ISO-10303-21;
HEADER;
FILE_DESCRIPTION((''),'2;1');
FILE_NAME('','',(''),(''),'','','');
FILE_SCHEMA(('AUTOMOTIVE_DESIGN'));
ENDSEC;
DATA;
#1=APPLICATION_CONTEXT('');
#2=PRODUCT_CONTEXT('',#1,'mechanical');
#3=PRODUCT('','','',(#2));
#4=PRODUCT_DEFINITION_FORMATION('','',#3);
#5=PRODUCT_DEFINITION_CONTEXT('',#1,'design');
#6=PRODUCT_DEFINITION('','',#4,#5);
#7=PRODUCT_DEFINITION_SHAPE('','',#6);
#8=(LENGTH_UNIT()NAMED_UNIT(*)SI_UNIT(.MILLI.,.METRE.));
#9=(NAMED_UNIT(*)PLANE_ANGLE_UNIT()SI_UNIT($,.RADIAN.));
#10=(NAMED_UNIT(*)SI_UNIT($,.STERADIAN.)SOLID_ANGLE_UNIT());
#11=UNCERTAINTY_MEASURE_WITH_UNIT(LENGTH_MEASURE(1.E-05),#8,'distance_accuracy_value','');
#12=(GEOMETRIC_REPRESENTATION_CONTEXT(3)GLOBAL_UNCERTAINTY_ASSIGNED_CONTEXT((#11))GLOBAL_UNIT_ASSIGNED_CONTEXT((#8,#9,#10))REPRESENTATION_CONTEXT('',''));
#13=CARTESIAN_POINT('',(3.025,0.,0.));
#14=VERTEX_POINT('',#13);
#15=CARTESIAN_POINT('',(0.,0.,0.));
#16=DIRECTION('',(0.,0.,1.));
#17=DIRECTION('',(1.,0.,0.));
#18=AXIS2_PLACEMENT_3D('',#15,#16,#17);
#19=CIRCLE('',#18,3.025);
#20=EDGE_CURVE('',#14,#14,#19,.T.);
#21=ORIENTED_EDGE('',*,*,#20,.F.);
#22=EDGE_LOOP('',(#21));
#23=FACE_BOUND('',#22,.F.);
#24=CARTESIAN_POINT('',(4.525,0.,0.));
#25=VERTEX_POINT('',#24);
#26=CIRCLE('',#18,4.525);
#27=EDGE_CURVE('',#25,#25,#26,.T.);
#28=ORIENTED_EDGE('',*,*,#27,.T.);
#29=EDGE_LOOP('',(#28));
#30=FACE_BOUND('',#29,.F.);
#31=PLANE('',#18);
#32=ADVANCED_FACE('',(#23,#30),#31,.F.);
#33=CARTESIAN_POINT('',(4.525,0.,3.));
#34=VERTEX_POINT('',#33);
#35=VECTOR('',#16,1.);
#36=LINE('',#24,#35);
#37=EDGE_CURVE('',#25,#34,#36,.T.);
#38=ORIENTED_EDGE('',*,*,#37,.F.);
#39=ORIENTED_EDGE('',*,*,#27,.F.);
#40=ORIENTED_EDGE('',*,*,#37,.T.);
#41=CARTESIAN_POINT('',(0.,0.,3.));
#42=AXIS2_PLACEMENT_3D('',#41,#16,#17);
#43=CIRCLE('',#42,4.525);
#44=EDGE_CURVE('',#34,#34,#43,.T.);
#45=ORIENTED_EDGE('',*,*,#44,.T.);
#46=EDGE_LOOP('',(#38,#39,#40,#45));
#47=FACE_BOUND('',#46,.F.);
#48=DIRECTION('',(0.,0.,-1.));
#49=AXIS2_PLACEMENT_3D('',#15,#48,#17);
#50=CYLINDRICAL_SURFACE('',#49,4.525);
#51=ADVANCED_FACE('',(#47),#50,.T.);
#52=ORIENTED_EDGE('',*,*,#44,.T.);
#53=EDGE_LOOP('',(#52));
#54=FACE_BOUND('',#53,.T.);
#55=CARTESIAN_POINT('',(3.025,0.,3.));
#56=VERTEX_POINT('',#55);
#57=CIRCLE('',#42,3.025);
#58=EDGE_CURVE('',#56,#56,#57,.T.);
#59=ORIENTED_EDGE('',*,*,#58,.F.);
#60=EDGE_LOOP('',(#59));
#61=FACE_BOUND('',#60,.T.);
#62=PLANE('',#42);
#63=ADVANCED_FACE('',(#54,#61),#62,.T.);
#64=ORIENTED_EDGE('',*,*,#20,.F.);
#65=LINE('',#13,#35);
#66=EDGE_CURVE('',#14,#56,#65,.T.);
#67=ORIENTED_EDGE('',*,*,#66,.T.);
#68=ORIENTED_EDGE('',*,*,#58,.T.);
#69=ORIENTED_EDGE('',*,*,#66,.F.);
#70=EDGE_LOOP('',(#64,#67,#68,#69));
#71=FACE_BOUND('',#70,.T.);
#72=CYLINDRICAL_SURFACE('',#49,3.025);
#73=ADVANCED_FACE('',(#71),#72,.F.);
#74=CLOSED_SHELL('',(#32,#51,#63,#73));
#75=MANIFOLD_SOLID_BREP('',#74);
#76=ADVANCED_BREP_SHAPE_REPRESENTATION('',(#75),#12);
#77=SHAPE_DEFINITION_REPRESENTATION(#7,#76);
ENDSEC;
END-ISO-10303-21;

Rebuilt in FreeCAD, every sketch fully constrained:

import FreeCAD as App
import Part
import Sketcher
from FreeCAD import Vector

doc = App.newDocument("Part")
params = doc.addObject("Spreadsheet::Sheet", "Params")
for row, (alias, value) in enumerate([
    ("sketch1_diameter", "6.05 mm"),
    ("sketch1_diameter2", "9.05 mm"),
    ("pad1_length", "3 mm"),
], start=1):
    params.set(f"A{row}", alias)
    params.set(f"B{row}", "=" + value)
    params.setAlias(f"B{row}", alias)

body = doc.addObject("PartDesign::Body", "Body")

# Sketch on XY plane
sketch1 = body.newObject("Sketcher::SketchObject", "Sketch")
sketch1.AttachmentSupport = (doc.getObject("XY_Plane"), [""])
sketch1.MapMode = "FlatFace"
sketch1.addGeometry(Part.Circle(Vector(0, 0, 0), Vector(0, 0, 1), 4.5), False)
sketch1.addGeometry(Part.Circle(Vector(0, 0, 0), Vector(0, 0, 1), 3), False)
sketch1.addConstraint(Sketcher.Constraint("Coincident", 0, 3, -1, 1))
sketch1.addConstraint(Sketcher.Constraint("Coincident", 1, 3, -1, 1))
sketch1.addConstraint(Sketcher.Constraint("Diameter", 1, 6.05))
sketch1.addConstraint(Sketcher.Constraint("Diameter", 0, 9.05))
sketch1.setExpression("Constraints[2]", "Params.sketch1_diameter")
sketch1.setExpression("Constraints[3]", "Params.sketch1_diameter2")
pad1 = body.newObject("PartDesign::Pad", "Pad")
pad1.Profile = sketch1
pad1.setExpression("Length", "Params.pad1_length")

doc.recompute()
